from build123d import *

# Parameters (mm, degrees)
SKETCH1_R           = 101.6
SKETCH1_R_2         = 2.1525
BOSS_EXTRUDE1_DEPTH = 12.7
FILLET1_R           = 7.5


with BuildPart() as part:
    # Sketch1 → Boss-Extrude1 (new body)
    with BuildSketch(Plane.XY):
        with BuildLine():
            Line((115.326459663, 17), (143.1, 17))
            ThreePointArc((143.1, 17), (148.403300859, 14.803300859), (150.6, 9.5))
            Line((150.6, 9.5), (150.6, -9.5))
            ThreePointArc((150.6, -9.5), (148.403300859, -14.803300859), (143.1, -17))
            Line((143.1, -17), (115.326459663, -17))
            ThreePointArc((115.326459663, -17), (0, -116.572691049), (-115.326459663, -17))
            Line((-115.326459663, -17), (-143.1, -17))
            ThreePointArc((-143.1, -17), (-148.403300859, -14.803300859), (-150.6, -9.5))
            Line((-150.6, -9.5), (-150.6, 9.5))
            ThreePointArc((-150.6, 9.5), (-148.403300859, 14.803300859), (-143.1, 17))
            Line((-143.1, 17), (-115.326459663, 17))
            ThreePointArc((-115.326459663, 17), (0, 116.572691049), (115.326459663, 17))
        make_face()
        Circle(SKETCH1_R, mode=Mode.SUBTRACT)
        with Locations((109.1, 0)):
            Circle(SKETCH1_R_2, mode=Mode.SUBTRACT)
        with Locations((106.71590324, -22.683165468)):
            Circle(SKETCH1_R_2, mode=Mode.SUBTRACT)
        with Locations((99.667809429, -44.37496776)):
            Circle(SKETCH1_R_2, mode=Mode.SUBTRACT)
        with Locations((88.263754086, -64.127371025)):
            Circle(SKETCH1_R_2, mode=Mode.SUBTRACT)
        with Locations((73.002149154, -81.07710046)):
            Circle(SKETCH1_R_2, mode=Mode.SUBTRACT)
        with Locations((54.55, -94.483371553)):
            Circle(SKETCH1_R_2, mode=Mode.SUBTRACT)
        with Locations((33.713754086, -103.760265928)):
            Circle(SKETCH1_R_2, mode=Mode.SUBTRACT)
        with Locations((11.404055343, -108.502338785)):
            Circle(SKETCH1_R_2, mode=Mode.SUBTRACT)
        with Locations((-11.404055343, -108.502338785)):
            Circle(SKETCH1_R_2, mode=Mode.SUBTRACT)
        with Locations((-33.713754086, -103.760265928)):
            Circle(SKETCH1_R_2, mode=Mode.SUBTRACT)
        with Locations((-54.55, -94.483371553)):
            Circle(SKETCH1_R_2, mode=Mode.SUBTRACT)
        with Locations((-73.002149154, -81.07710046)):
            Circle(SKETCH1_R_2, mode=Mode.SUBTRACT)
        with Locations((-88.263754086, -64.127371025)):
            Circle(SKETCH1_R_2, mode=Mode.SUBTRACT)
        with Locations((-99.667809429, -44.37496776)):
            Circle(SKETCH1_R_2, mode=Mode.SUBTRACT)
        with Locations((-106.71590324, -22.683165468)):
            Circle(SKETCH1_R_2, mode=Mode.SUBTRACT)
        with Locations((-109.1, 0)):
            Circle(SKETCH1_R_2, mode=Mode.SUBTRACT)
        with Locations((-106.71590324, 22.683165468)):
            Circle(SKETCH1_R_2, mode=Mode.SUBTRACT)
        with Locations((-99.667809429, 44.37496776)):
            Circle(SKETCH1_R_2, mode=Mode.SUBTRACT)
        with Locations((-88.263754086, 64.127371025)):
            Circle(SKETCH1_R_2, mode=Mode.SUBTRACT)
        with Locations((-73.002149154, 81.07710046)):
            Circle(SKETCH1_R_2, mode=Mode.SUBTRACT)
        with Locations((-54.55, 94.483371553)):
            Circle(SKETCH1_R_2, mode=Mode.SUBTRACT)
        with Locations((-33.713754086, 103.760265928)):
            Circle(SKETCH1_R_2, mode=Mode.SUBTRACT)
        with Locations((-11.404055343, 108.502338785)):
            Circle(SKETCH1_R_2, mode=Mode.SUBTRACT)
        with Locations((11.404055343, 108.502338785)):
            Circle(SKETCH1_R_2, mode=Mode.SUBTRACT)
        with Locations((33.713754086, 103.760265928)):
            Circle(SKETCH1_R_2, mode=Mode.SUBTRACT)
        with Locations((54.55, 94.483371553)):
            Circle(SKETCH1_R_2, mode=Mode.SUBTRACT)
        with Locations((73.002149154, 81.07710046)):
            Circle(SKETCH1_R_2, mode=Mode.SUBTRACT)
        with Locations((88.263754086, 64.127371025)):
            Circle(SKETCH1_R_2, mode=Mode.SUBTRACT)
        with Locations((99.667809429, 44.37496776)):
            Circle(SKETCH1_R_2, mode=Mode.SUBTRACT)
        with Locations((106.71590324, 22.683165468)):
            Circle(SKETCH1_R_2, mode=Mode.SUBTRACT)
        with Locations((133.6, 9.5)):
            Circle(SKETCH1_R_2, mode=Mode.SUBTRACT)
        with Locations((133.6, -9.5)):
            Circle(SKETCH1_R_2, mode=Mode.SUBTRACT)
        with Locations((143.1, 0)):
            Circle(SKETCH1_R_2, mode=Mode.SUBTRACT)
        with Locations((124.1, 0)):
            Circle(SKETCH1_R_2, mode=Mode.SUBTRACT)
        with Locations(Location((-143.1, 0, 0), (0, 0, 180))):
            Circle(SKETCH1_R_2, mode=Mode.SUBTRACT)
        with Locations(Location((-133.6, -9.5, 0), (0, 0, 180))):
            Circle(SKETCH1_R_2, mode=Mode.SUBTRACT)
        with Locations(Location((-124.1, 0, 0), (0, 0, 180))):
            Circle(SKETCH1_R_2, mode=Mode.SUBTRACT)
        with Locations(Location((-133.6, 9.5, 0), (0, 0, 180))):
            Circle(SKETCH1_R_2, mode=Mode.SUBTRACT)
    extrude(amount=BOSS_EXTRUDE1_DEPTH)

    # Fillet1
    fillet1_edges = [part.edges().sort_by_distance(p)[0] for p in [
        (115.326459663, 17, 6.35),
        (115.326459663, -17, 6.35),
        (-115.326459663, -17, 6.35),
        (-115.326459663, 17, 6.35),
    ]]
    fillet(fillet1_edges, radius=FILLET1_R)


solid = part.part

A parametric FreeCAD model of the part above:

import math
import FreeCAD as App
import Part
import Sketcher
Q = App.Units.Quantity


def edges_at(feature, points):
    """Names of the edges that pass closest to the given points."""
    edges = feature.Shape.Edges
    near = lambda p: min(range(len(edges)), key=lambda i: edges[i].distToShape(Part.Vertex(*p))[0])
    return sorted({f"Edge{near(p) + 1}" for p in points})

doc = App.newDocument("Part")
body = doc.addObject("PartDesign::Body", "Body")

# Sketch on XY plane
sketch1 = doc.addObject("Sketcher::SketchObject", "Sketch")
body.addObject(sketch1)
sketch1.AttachmentSupport = (doc.XY_Plane, [""])
sketch1.MapMode = "FlatFace"
sketch1.addGeometry(Part.LineSegment(App.Vector(143.1, 17, 0), App.Vector(115.3, 17, 0)), False)
sketch1.addGeometry(Part.ArcOfCircle(Part.Circle(App.Vector(0, 0, 0), App.Vector(0, 0, 1), 116.6), math.radians(8), math.radians(172)), False)
sketch1.addGeometry(Part.LineSegment(App.Vector(-115.3, 17, 0), App.Vector(-143.1, 17, 0)), False)
sketch1.addGeometry(Part.ArcOfCircle(Part.Circle(App.Vector(-143.1, 9.5, 0), App.Vector(0, 0, 1), 7.5), math.radians(90), math.radians(180)), False)
sketch1.addGeometry(Part.LineSegment(App.Vector(-150.6, 9.5, 0), App.Vector(-150.6, -9.5, 0)), False)
sketch1.addGeometry(Part.ArcOfCircle(Part.Circle(App.Vector(-143.1, -9.5, 0), App.Vector(0, 0, 1), 7.5), math.radians(180), math.radians(270)), False)
sketch1.addGeometry(Part.LineSegment(App.Vector(-143.1, -17, 0), App.Vector(-115.3, -17, 0)), False)
sketch1.addGeometry(Part.ArcOfCircle(Part.Circle(App.Vector(0, 0, 0), App.Vector(0, 0, 1), 116.6), math.radians(-172), math.radians(-8)), False)
sketch1.addGeometry(Part.LineSegment(App.Vector(115.3, -17, 0), App.Vector(143.1, -17, 0)), False)
sketch1.addGeometry(Part.ArcOfCircle(Part.Circle(App.Vector(143.1, -9.5, 0), App.Vector(0, 0, 1), 7.5), math.radians(-90), math.radians(0)), False)
sketch1.addGeometry(Part.LineSegment(App.Vector(150.6, -9.5, 0), App.Vector(150.6, 9.5, 0)), False)
sketch1.addGeometry(Part.ArcOfCircle(Part.Circle(App.Vector(143.1, 9.5, 0), App.Vector(0, 0, 1), 7.5), math.radians(0), math.radians(90)), False)
sketch1.addGeometry(Part.Circle(App.Vector(73, -81.1, 0), App.Vector(0, 0, 1), 2.2), False)
sketch1.addGeometry(Part.Circle(App.Vector(88.3, -64.1, 0), App.Vector(0, 0, 1), 2.2), False)
sketch1.addGeometry(Part.Circle(App.Vector(54.5, -94.5, 0), App.Vector(0, 0, 1), 2.2), False)
sketch1.addGeometry(Part.Circle(App.Vector(33.7, -103.8, 0), App.Vector(0, 0, 1), 2.2), False)
sketch1.addGeometry(Part.Circle(App.Vector(11.4, -108.5, 0), App.Vector(0, 0, 1), 2.2), False)
sketch1.addGeometry(Part.Circle(App.Vector(99.7, -44.4, 0), App.Vector(0, 0, 1), 2.2), False)
sketch1.addGeometry(Part.Circle(App.Vector(133.6, -9.5, 0), App.Vector(0, 0, 1), 2.2), False)
sketch1.addGeometry(Part.Circle(App.Vector(106.7, -22.7, 0), App.Vector(0, 0, 1), 2.2), False)
sketch1.addGeometry(Part.Circle(App.Vector(-11.4, -108.5, 0), App.Vector(0, 0, 1), 2.2), False)
sketch1.addGeometry(Part.Circle(App.Vector(-33.7, -103.8, 0), App.Vector(0, 0, 1), 2.2), False)
sketch1.addGeometry(Part.Circle(App.Vector(-54.5, -94.5, 0), App.Vector(0, 0, 1), 2.2), False)
sketch1.addGeometry(Part.Circle(App.Vector(-73, -81.1, 0), App.Vector(0, 0, 1), 2.2), False)
sketch1.addGeometry(Part.Circle(App.Vector(-88.3, -64.1, 0), App.Vector(0, 0, 1), 2.2), False)
sketch1.addGeometry(Part.Circle(App.Vector(-99.7, -44.4, 0), App.Vector(0, 0, 1), 2.2), False)
sketch1.addGeometry(Part.Circle(App.Vector(-106.7, -22.7, 0), App.Vector(0, 0, 1), 2.2), False)
sketch1.addGeometry(Part.Circle(App.Vector(-133.6, -9.5, 0), App.Vector(0, 0, 1), 2.2), False)
sketch1.addGeometry(Part.Circle(App.Vector(143.1, 0, 0), App.Vector(0, 0, 1), 2.2), False)
sketch1.addGeometry(Part.Circle(App.Vector(133.6, 9.5, 0), App.Vector(0, 0, 1), 2.2), False)
sketch1.addGeometry(Part.Circle(App.Vector(124.1, 0, 0), App.Vector(0, 0, 1), 2.2), False)
sketch1.addGeometry(Part.Circle(App.Vector(109.1, 0, 0), App.Vector(0, 0, 1), 2.2), False)
sketch1.addGeometry(Part.Circle(App.Vector(106.7, 22.7, 0), App.Vector(0, 0, 1), 2.2), False)
sketch1.addGeometry(Part.Circle(App.Vector(99.7, 44.4, 0), App.Vector(0, 0, 1), 2.2), False)
sketch1.addGeometry(Part.Circle(App.Vector(88.3, 64.1, 0), App.Vector(0, 0, 1), 2.2), False)
sketch1.addGeometry(Part.Circle(App.Vector(73, 81.1, 0), App.Vector(0, 0, 1), 2.2), False)
sketch1.addGeometry(Part.Circle(App.Vector(54.5, 94.5, 0), App.Vector(0, 0, 1), 2.2), False)
sketch1.addGeometry(Part.Circle(App.Vector(33.7, 103.8, 0), App.Vector(0, 0, 1), 2.2), False)
sketch1.addGeometry(Part.Circle(App.Vector(11.4, 108.5, 0), App.Vector(0, 0, 1), 2.2), False)
sketch1.addGeometry(Part.Circle(App.Vector(0, 0, 0), App.Vector(0, 0, 1), 101.6), False)
sketch1.addGeometry(Part.Circle(App.Vector(-106.7, 22.7, 0), App.Vector(0, 0, 1), 2.2), False)
sketch1.addGeometry(Part.Circle(App.Vector(-109.1, 0, 0), App.Vector(0, 0, 1), 2.2), False)
sketch1.addGeometry(Part.Circle(App.Vector(-124.1, 0, 0), App.Vector(0, 0, 1), 2.2), False)
sketch1.addGeometry(Part.Circle(App.Vector(-143.1, 0, 0), App.Vector(0, 0, 1), 2.2), False)
sketch1.addGeometry(Part.Circle(App.Vector(-133.6, 9.5, 0), App.Vector(0, 0, 1), 2.2), False)
sketch1.addGeometry(Part.Circle(App.Vector(-99.7, 44.4, 0), App.Vector(0, 0, 1), 2.2), False)
sketch1.addGeometry(Part.Circle(App.Vector(-11.4, 108.5, 0), App.Vector(0, 0, 1), 2.2), False)
sketch1.addGeometry(Part.Circle(App.Vector(-33.7, 103.8, 0), App.Vector(0, 0, 1), 2.2), False)
sketch1.addGeometry(Part.Circle(App.Vector(-54.5, 94.5, 0), App.Vector(0, 0, 1), 2.2), False)
sketch1.addGeometry(Part.Circle(App.Vector(-88.3, 64.1, 0), App.Vector(0, 0, 1), 2.2), False)
sketch1.addGeometry(Part.Circle(App.Vector(-73, 81.1, 0), App.Vector(0, 0, 1), 2.2), False)
sketch1.addConstraint(Sketcher.Constraint("Coincident", 0, 2, 1, 1))
sketch1.addConstraint(Sketcher.Constraint("Coincident", 1, 2, 2, 1))
sketch1.addConstraint(Sketcher.Constraint("Tangent", 2, 2, 3, 1))
sketch1.addConstraint(Sketcher.Constraint("Tangent", 3, 2, 4, 1))
sketch1.addConstraint(Sketcher.Constraint("Tangent", 4, 2, 5, 1))
sketch1.addConstraint(Sketcher.Constraint("Tangent", 5, 2, 6, 1))
sketch1.addConstraint(Sketcher.Constraint("Coincident", 6, 2, 7, 1))
sketch1.addConstraint(Sketcher.Constraint("Coincident", 7, 2, 8, 1))
sketch1.addConstraint(Sketcher.Constraint("Tangent", 8, 2, 9, 1))
sketch1.addConstraint(Sketcher.Constraint("Tangent", 9, 2, 10, 1))
sketch1.addConstraint(Sketcher.Constraint("Tangent", 10, 2, 11, 1))
sketch1.addConstraint(Sketcher.Constraint("Tangent", 11, 2, 0, 1))
sketch1.addConstraint(Sketcher.Constraint("Horizontal", 0))
sketch1.addConstraint(Sketcher.Constraint("Horizontal", 2))
sketch1.addConstraint(Sketcher.Constraint("Vertical", 4))
sketch1.addConstraint(Sketcher.Constraint("Horizontal", 6))
sketch1.addConstraint(Sketcher.Constraint("Horizontal", 8))
sketch1.addConstraint(Sketcher.Constraint("Vertical", 10))
sketch1.addConstraint(Sketcher.Constraint("Coincident", 1, 3, -1, 1))
sketch1.addConstraint(Sketcher.Constraint("Coincident", 7, 3, -1, 1))
sketch1.addConstraint(Sketcher.Constraint("Coincident", 39, 3, -1, 1))
sketch1.addConstraint(Sketcher.Constraint("Equal", 3, 5))
sketch1.addConstraint(Sketcher.Constraint("Equal", 1, 7))
sketch1.addConstraint(Sketcher.Constraint("Equal", 5, 9))
sketch1.addConstraint(Sketcher.Constraint("Equal", 9, 11))
sketch1.addConstraint(Sketcher.Constraint("Equal", 12, 13))
sketch1.addConstraint(Sketcher.Constraint("Equal", 13, 14))
sketch1.addConstraint(Sketcher.Constraint("Equal", 14, 15))
sketch1.addConstraint(Sketcher.Constraint("Equal", 15, 16))
sketch1.addConstraint(Sketcher.Constraint("Equal", 16, 17))
sketch1.addConstraint(Sketcher.Constraint("Equal", 17, 18))
sketch1.addConstraint(Sketcher.Constraint("Equal", 18, 19))
sketch1.addConstraint(Sketcher.Constraint("Equal", 19, 20))
sketch1.addConstraint(Sketcher.Constraint("Equal", 20, 21))
sketch1.addConstraint(Sketcher.Constraint("Equal", 21, 22))
sketch1.addConstraint(Sketcher.Constraint("Equal", 22, 23))
sketch1.addConstraint(Sketcher.Constraint("Equal", 23, 24))
sketch1.addConstraint(Sketcher.Constraint("Equal", 24, 25))
sketch1.addConstraint(Sketcher.Constraint("Equal", 25, 26))
sketch1.addConstraint(Sketcher.Constraint("Equal", 26, 27))
sketch1.addConstraint(Sketcher.Constraint("Equal", 27, 28))
sketch1.addConstraint(Sketcher.Constraint("Equal", 28, 29))
sketch1.addConstraint(Sketcher.Constraint("Equal", 29, 30))
sketch1.addConstraint(Sketcher.Constraint("Equal", 30, 31))
sketch1.addConstraint(Sketcher.Constraint("Equal", 31, 32))
sketch1.addConstraint(Sketcher.Constraint("Equal", 32, 33))
sketch1.addConstraint(Sketcher.Constraint("Equal", 33, 34))
sketch1.addConstraint(Sketcher.Constraint("Equal", 34, 35))
sketch1.addConstraint(Sketcher.Constraint("Equal", 35, 36))
sketch1.addConstraint(Sketcher.Constraint("Equal", 36, 37))
sketch1.addConstraint(Sketcher.Constraint("Equal", 37, 38))
sketch1.addConstraint(Sketcher.Constraint("Equal", 38, 40))
sketch1.addConstraint(Sketcher.Constraint("Equal", 40, 41))
sketch1.addConstraint(Sketcher.Constraint("Equal", 41, 42))
sketch1.addConstraint(Sketcher.Constraint("Equal", 42, 43))
sketch1.addConstraint(Sketcher.Constraint("Equal", 43, 44))
sketch1.addConstraint(Sketcher.Constraint("Equal", 44, 45))
sketch1.addConstraint(Sketcher.Constraint("Equal", 45, 46))
sketch1.addConstraint(Sketcher.Constraint("Equal", 46, 47))
sketch1.addConstraint(Sketcher.Constraint("Equal", 47, 48))
sketch1.addConstraint(Sketcher.Constraint("Equal", 48, 49))
sketch1.addConstraint(Sketcher.Constraint("Equal", 49, 50))
sketch1.addConstraint(Sketcher.Constraint("Symmetric", 3, 3, 9, 3, -1, 1))
sketch1.addConstraint(Sketcher.Constraint("Symmetric", 27, 3, 29, 3, -1, 1))
sketch1.addConstraint(Sketcher.Constraint("Symmetric", 26, 3, 32, 3, -1, 1))
sketch1.addConstraint(Sketcher.Constraint("Symmetric", 25, 3, 33, 3, -1, 1))
sketch1.addConstraint(Sketcher.Constraint("Symmetric", 24, 3, 34, 3, -1, 1))
sketch1.addConstraint(Sketcher.Constraint("Symmetric", 23, 3, 35, 3, -1, 1))
sketch1.addConstraint(Sketcher.Constraint("Symmetric", 22, 3, 36, 3, -1, 1))
sketch1.addConstraint(Sketcher.Constraint("Symmetric", 21, 3, 37, 3, -1, 1))
sketch1.addConstraint(Sketcher.Constraint("Symmetric", 20, 3, 38, 3, -1, 1))
sketch1.addConstraint(Sketcher.Constraint("Symmetric", 19, 3, 40, 3, -1, 1))
sketch1.addConstraint(Sketcher.Constraint("Symmetric", 31, 3, 41, 3, -1, 1))
sketch1.addConstraint(Sketcher.Constraint("Symmetric", 30, 3, 42, 3, -1, 1))
sketch1.addConstraint(Sketcher.Constraint("Symmetric", 28, 3, 43, 3, -1, 1))
sketch1.addConstraint(Sketcher.Constraint("Symmetric", 18, 3, 44, 3, -1, 1))
sketch1.addConstraint(Sketcher.Constraint("Symmetric", 17, 3, 45, 3, -1, 1))
sketch1.addConstraint(Sketcher.Constraint("Symmetric", 16, 3, 46, 3, -1, 1))
sketch1.addConstraint(Sketcher.Constraint("Symmetric", 15, 3, 47, 3, -1, 1))
sketch1.addConstraint(Sketcher.Constraint("Symmetric", 14, 3, 48, 3, -1, 1))
sketch1.addConstraint(Sketcher.Constraint("Symmetric", 13, 3, 49, 3, -1, 1))
sketch1.addConstraint(Sketcher.Constraint("Symmetric", 12, 3, 50, 3, -1, 1))
sketch1.addConstraint(Sketcher.Constraint("Symmetric", 16, 3, 20, 3, -2))
sketch1.addConstraint(Sketcher.Constraint("Symmetric", 15, 3, 21, 3, -2))
sketch1.addConstraint(Sketcher.Constraint("Symmetric", 14, 3, 22, 3, -2))
sketch1.addConstraint(Sketcher.Constraint("Symmetric", 12, 3, 23, 3, -2))
sketch1.addConstraint(Sketcher.Constraint("Symmetric", 13, 3, 24, 3, -2))
sketch1.addConstraint(Sketcher.Constraint("Symmetric", 17, 3, 25, 3, -2))
sketch1.addConstraint(Sketcher.Constraint("Symmetric", 19, 3, 26, 3, -2))
sketch1.addConstraint(Sketcher.Constraint("Symmetric", 18, 3, 27, 3, -2))
sketch1.addConstraint(Sketcher.Constraint("PointOnObject", 28, 3, -1))
sketch1.addConstraint(Sketcher.Constraint("PointOnObject", 30, 3, -1))
sketch1.addConstraint(Sketcher.Constraint("PointOnObject", 31, 3, -1))
sketch1.addConstraint(Sketcher.Constraint("Horizontal", 5, 3, 9, 3))
sketch1.addConstraint(Sketcher.Constraint("Horizontal", 3, 3, 11, 3))
sketch1.addConstraint(Sketcher.Constraint("Horizontal", 9, 3, 18, 3))
sketch1.addConstraint(Sketcher.Constraint("Vertical", 11, 3, 28, 3))
sketch1.addConstraint(Sketcher.Constraint("Diameter", 39, Q("203.2 mm")))
sketch1.addConstraint(Sketcher.Constraint("Radius", 3, Q("7.5 mm")))
sketch1.addConstraint(Sketcher.Constraint("DistanceY", 4, 2, 4, 1, Q("19 mm")))
sketch1.addConstraint(Sketcher.Constraint("Diameter", 12, Q("4.305 mm")))
sketch1.addConstraint(Sketcher.Constraint("DistanceX", 30, 3, 28, 3, Q("19 mm")))
sketch1.addConstraint(Sketcher.Constraint("DistanceX", 31, 3, 30, 3, Q("15 mm")))
sketch1.addConstraint(Sketcher.Constraint("DistanceX", 3, 2, 44, 3, Q("17 mm")))
sketch1.addConstraint(Sketcher.Constraint("DistanceX", 3, 3, -1, 1, Q("143.1 mm")))
sketch1.addConstraint(Sketcher.Constraint("DistanceX", 22, 3, 14, 3, Q("109.1 mm")))
sketch1.addConstraint(Sketcher.Constraint("Radius", 1, Q("116.572691 mm")))
sketch1.addConstraint(Sketcher.Constraint("DistanceX", 15, 3, 13, 3, Q("54.55 mm")))
sketch1.addConstraint(Sketcher.Constraint("DistanceY", 14, 3, 13, 3, Q("30.356001 mm")))
sketch1.addConstraint(Sketcher.Constraint("DistanceY", 12, 3, -1, 1, Q("81.0771 mm")))
sketch1.addConstraint(Sketcher.Constraint("DistanceX", 16, 3, 15, 3, Q("22.309699 mm")))
sketch1.addConstraint(Sketcher.Constraint("DistanceY", 33, 3, 37, 3, Q("59.385298 mm")))
sketch1.addConstraint(Sketcher.Constraint("DistanceX", -1, 1, 12, 3, Q("73.002149 mm")))
sketch1.addConstraint(Sketcher.Constraint("DistanceY", 13, 3, -1, 1, Q("64.127371 mm")))
sketch1.addConstraint(Sketcher.Constraint("DistanceY", 16, 3, -1, 1, Q("108.502339 mm")))
sketch1.addConstraint(Sketcher.Constraint("DistanceX", -1, 1, 17, 3, Q("99.667809 mm")))
sketch1.addConstraint(Sketcher.Constraint("DistanceX", 13, 3, 19, 3, Q("18.452149 mm")))
sketch1.addConstraint(Sketcher.Constraint("DistanceX", 20, 3, 16, 3, Q("22.808111 mm")))
sketch1.addConstraint(Sketcher.Constraint("DistanceY", 33, 3, 38, 3, Q("64.127371 mm")))
sketch1.addConstraint(Sketcher.Constraint("DistanceY", 26, 3, 40, 3, Q("45.366331 mm")))
pad1 = doc.addObject("PartDesign::Pad", "Pad")
body.addObject(pad1)
pad1.Profile = sketch1
pad1.Length = 12.7
doc.recompute()

fillet = doc.addObject("PartDesign::Fillet", "Fillet")
body.addObject(fillet)
fillet.Base = (pad1, edges_at(pad1, [
    (115.326, 17, 6.35),
    (115.326, -17, 6.35),
    (-115.326, -17, 6.35),
    (-115.326, 17, 6.35),
]))
fillet.Radius = 7.5

doc.recompute()
